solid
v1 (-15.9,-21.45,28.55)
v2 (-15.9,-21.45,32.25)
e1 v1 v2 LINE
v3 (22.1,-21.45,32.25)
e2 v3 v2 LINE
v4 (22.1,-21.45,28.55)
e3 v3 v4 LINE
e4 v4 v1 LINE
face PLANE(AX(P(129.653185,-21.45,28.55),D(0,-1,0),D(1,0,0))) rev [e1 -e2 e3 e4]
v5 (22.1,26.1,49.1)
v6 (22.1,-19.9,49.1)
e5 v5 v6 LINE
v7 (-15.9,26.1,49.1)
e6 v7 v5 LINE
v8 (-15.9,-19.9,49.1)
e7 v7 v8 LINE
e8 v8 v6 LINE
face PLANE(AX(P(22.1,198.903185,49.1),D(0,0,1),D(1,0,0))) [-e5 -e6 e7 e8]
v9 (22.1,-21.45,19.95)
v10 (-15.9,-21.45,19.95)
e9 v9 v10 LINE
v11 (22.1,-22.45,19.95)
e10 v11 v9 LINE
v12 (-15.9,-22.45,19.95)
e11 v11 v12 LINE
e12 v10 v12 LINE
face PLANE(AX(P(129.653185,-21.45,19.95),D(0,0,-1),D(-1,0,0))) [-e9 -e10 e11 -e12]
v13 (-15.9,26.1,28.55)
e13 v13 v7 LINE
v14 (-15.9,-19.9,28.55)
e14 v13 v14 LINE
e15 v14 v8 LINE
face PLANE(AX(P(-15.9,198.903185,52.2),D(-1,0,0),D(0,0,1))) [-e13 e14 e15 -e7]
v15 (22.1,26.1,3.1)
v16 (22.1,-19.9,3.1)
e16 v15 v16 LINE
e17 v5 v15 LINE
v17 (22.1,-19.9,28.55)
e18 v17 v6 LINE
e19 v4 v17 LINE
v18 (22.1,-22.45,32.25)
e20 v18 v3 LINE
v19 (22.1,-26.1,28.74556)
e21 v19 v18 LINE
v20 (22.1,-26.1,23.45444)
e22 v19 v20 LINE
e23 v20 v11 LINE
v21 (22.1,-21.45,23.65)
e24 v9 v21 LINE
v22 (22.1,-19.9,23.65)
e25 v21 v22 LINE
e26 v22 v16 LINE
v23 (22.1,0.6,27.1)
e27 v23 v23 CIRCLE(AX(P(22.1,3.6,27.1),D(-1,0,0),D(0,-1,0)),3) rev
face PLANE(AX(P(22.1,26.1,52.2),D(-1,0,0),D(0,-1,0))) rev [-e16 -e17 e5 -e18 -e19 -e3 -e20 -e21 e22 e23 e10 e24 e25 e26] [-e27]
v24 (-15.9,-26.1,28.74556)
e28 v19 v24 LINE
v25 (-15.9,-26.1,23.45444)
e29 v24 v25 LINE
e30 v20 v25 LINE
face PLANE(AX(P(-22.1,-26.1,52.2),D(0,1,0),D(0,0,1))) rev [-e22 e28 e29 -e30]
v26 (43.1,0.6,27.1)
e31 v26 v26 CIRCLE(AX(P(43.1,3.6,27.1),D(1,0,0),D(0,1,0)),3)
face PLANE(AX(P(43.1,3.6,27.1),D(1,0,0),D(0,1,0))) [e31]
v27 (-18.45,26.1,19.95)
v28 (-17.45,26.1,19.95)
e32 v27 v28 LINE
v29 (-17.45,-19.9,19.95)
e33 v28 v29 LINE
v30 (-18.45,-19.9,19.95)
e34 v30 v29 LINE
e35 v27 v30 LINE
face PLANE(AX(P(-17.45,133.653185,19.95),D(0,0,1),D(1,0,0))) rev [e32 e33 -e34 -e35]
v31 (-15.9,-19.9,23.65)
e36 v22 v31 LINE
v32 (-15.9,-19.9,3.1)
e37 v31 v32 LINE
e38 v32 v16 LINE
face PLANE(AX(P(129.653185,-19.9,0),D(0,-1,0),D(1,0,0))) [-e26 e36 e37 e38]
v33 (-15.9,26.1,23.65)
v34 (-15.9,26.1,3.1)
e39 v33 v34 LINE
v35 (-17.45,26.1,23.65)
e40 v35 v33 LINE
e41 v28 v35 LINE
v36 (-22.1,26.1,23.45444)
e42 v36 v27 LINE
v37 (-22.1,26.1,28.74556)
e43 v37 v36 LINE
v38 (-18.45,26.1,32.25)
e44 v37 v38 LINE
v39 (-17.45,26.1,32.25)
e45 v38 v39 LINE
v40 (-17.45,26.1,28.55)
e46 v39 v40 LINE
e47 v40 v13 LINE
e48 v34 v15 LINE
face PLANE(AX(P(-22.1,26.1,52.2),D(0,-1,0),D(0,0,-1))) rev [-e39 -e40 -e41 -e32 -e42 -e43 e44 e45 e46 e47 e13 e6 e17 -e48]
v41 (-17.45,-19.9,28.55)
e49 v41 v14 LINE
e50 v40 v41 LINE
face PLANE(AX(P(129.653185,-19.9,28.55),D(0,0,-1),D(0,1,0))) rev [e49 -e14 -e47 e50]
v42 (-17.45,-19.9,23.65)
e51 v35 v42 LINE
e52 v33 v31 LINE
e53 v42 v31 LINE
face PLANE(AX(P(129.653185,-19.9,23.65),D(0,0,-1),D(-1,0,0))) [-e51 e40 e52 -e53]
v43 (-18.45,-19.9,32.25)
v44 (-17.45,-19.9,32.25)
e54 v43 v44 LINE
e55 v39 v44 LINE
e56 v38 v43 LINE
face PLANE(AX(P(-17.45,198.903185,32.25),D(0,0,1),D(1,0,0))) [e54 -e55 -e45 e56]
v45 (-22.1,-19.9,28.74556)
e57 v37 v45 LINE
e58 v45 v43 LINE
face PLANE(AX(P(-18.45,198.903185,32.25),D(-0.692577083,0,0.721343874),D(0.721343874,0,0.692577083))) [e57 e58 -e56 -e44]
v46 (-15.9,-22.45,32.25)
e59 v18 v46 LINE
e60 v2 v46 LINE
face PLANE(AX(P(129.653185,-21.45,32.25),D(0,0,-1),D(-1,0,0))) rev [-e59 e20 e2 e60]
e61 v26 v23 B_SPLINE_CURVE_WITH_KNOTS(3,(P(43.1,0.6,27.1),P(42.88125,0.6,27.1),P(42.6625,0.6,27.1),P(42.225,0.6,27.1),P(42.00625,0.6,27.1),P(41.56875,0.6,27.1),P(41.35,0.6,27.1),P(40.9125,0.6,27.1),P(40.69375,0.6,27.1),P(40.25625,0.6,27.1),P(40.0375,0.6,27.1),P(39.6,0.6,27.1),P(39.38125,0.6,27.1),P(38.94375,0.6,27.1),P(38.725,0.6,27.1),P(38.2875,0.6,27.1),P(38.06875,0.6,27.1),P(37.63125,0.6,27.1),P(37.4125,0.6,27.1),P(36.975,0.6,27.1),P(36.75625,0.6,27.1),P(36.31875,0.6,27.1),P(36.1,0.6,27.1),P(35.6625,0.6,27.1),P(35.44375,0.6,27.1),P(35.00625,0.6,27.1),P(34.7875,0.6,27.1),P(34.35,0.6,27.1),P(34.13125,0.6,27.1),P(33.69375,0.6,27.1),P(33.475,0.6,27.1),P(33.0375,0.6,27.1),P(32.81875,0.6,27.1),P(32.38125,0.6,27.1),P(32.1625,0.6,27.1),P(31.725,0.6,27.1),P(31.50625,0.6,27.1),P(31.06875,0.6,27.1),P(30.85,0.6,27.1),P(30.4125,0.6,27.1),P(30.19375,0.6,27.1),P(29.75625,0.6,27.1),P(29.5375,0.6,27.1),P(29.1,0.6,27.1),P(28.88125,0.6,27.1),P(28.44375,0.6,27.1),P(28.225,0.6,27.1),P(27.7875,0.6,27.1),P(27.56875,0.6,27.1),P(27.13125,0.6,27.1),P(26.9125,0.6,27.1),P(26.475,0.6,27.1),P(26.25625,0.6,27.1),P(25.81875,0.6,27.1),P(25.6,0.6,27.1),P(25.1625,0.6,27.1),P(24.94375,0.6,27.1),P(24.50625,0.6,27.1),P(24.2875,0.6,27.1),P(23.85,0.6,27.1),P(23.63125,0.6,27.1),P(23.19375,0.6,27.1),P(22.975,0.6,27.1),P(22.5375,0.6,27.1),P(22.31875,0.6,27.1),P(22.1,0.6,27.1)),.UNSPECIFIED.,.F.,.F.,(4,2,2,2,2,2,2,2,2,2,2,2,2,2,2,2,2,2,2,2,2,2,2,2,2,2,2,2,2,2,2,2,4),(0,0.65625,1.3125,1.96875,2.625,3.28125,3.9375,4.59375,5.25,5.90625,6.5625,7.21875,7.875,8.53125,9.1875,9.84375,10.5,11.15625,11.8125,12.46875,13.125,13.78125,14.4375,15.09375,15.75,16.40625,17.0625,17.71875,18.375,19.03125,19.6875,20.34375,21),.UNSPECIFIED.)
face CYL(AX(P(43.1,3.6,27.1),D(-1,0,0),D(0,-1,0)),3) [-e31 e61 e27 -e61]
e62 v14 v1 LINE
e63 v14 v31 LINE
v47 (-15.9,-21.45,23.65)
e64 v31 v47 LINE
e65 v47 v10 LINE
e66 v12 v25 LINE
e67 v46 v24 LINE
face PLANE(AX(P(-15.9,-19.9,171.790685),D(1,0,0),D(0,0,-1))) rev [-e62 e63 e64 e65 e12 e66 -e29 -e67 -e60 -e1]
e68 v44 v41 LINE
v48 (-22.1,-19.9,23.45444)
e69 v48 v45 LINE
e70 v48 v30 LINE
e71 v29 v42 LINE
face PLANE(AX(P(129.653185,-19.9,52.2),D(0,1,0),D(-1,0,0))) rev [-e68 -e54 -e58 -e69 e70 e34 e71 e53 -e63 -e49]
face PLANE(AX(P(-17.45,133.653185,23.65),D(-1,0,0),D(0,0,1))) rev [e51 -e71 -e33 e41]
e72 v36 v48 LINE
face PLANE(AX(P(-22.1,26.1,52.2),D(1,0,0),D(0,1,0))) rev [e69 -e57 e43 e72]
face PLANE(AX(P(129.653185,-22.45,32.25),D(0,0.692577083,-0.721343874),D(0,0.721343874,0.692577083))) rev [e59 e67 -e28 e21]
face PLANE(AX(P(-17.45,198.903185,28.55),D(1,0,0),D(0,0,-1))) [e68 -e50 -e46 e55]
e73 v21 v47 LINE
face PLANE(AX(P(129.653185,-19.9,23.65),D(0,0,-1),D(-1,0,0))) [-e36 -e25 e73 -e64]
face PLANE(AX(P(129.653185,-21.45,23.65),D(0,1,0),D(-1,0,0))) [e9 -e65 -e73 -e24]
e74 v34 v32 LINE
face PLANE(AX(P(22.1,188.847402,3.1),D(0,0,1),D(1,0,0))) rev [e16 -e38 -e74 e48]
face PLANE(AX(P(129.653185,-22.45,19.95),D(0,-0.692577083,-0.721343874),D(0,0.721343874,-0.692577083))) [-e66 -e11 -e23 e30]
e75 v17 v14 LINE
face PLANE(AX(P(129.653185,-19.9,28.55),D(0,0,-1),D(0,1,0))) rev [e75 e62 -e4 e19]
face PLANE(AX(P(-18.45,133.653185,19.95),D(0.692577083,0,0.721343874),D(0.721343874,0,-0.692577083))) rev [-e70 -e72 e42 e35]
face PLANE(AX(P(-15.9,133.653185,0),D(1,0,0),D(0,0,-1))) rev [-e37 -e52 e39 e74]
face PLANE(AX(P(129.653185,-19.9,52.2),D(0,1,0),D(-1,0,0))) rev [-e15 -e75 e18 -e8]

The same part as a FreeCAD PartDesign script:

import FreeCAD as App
import Part
import Sketcher
Q = App.Units.Quantity


def add_polygon(sketch, points):
    """Adds a closed chain of lines whose ends are joined by coincident constraints."""
    first, n = sketch.GeometryCount, len(points)
    for a, b in zip(points, points[1:] + points[:1]):
        sketch.addGeometry(Part.LineSegment(App.Vector(*a, 0), App.Vector(*b, 0)), False)
    for i in range(n):
        sketch.addConstraint(Sketcher.Constraint("Coincident", first + i, 2, first + (i + 1) % n, 1))

doc = App.newDocument("Part")
params = doc.addObject("Spreadsheet::Sheet", "Params")
for row, (alias, value) in enumerate([
    ("sketch1_width", "44.2 mm"),
    ("sketch1_height", "52.2 mm"),
    ("pad1_length", "52.2 mm"),
    ("sketch2_width", "1 mm"),
    ("sketch2_height", "3.7 mm"),
    ("sketch2_width2", "1.55 mm"),
    ("sketch2_length", "5.06 mm"),
    ("sketch3_width", "1 mm"),
    ("sketch3_height", "3.7 mm"),
    ("sketch3_width2", "1.55 mm"),
    ("sketch3_length", "5.06 mm"),
    ("sketch4_width", "1 mm"),
    ("sketch4_height", "3.7 mm"),
    ("sketch4_width2", "1.55 mm"),
    ("sketch4_length", "5.06 mm"),
    ("pocket3_length", "78.059003 mm"),
    ("pocket3_length2", "46 mm"),
    ("sketch5_width", "1 mm"),
    ("sketch5_height", "3.7 mm"),
    ("sketch5_width2", "1.55 mm"),
    ("sketch5_length", "5.06 mm"),
    ("pocket4_length", "78.059003 mm"),
    ("pocket4_length2", "46 mm"),
    ("sketch9_diameter", "6 mm"),
    ("pad2_length", "21 mm"),
], start=1):
    params.set(f"A{row}", alias)
    params.set(f"B{row}", "=" + value)
    params.setAlias(f"B{row}", alias)

body = doc.addObject("PartDesign::Body", "Body")

sketch1 = body.newObject("Sketcher::SketchObject", "Sketch")
sketch1.AttachmentSupport = (doc.getObject("XY_Plane"), [""])
sketch1.MapMode = "FlatFace"
add_polygon(sketch1, [(-22, 26), (-22, -26), (22, -26), (22, 26)])
sketch1.addConstraint([
    Sketcher.Constraint("Vertical", 0),
    Sketcher.Constraint("Horizontal", 1),
    Sketcher.Constraint("Vertical", 2),
    Sketcher.Constraint("Horizontal", 3),
    Sketcher.Constraint("Symmetric", 0, 2, 2, 2, -1, 1),
    Sketcher.Constraint("DistanceX", 1, 1, 1, 2, Q("44.2 mm")),
    Sketcher.Constraint("DistanceY", 0, 2, 0, 1, Q("52.2 mm")),
])
sketch1.setExpression("Constraints[9]", "Params.sketch1_width")
sketch1.setExpression("Constraints[10]", "Params.sketch1_height")
pad1 = body.newObject("PartDesign::Pad", "Pad")
pad1.Profile = sketch1
pad1.setExpression("Length", "Params.pad1_length")

sketch2 = body.newObject("Sketcher::SketchObject", "Sketch001")
sketch2.AttachmentSupport = (doc.getObject("YZ_Plane"), [""])
sketch2.MapMode = "FlatFace"
sketch2.AttachmentOffset = App.Placement(App.Vector(0, 0, 22.1), App.Rotation())
add_polygon(sketch2, [(-19.9, 28.6), (-19.9, 201.4), (-295.7, 315.1), (-409.5, 39.2), (-133.7, -74.6), (-26.1, 28.7), (-22.4, 32.2), (-21.4, 32.2), (-21.4, 28.6)])
sketch2.addConstraint([
    Sketcher.Constraint("Vertical", 0),
    Sketcher.Constraint("Horizontal", 6),
    Sketcher.Constraint("Vertical", 7),
    Sketcher.Constraint("Horizontal", 8),
    Sketcher.Constraint("Perpendicular", 1, 2),
    Sketcher.Constraint("Perpendicular", 2, 3),
    Sketcher.Constraint("Parallel", 4, 5),
    Sketcher.Constraint("Equal", 1, 3),
    Sketcher.Constraint("DistanceX", 6, 1, 6, 2, Q("1 mm")),
    Sketcher.Constraint("DistanceY", 7, 2, 7, 1, Q("3.7 mm")),
    Sketcher.Constraint("DistanceX", 8, 1, 8, 2, Q("1.55 mm")),
    Sketcher.Constraint("DistanceX", 0, 2, -1, 1, Q("19.9 mm")),
    Sketcher.Constraint("DistanceX", 4, 2, -1, 1, Q("26.1 mm")),
    Sketcher.Constraint("Distance", 5, Q("5.06 mm")),
    Sketcher.Constraint("DistanceY", -1, 1, 5, 2, Q("32.25 mm")),
    Sketcher.Constraint("DistanceY", 0, 1, 0, 2, Q("172.802291 mm")),
    Sketcher.Constraint("DistanceY", 3, 2, -1, 1, Q("74.553898 mm")),
    Sketcher.Constraint("Distance", 1, Q("298.304581 mm")),
])
sketch2.setExpression("Constraints[17]", "Params.sketch2_width")
sketch2.setExpression("Constraints[18]", "Params.sketch2_height")
sketch2.setExpression("Constraints[19]", "Params.sketch2_width2")
sketch2.setExpression("Constraints[22]", "Params.sketch2_length")
pocket1 = body.newObject("PartDesign::Pocket", "Pocket")
pocket1.Profile = sketch2
pocket1.Type = "ThroughAll"
pocket1.Midplane = True

sketch3 = body.newObject("Sketcher::SketchObject", "Sketch002")
sketch3.AttachmentSupport = (doc.getObject("YZ_Plane"), [""])
sketch3.MapMode = "FlatFace"
sketch3.AttachmentOffset = App.Placement(App.Vector(0, 0, 22.1), App.Rotation())
add_polygon(sketch3, [(-19.9, -149.2), (-19.9, 23.6), (-21.4, 23.6), (-21.4, 19.9), (-22.4, 19.9), (-26.1, 23.5), (-133.7, 126.8), (-409.5, 13), (-295.7, -262.9)])
sketch3.addConstraint([
    Sketcher.Constraint("Vertical", 0),
    Sketcher.Constraint("Horizontal", 1),
    Sketcher.Constraint("Vertical", 2),
    Sketcher.Constraint("Horizontal", 3),
    Sketcher.Constraint("Parallel", 4, 5),
    Sketcher.Constraint("Perpendicular", 6, 7),
    Sketcher.Constraint("Perpendicular", 7, 8),
    Sketcher.Constraint("Equal", 6, 8),
    Sketcher.Constraint("DistanceX", 3, 2, 3, 1, Q("1 mm")),
    Sketcher.Constraint("DistanceY", 2, 2, 2, 1, Q("3.7 mm")),
    Sketcher.Constraint("DistanceX", 1, 2, 1, 1, Q("1.55 mm")),
    Sketcher.Constraint("DistanceX", 0, 2, -1, 1, Q("19.9 mm")),
    Sketcher.Constraint("DistanceX", 4, 2, -1, 1, Q("26.1 mm")),
    Sketcher.Constraint("Distance", 4, Q("5.06 mm")),
    Sketcher.Constraint("DistanceY", -1, 1, 0, 2, Q("23.65 mm")),
    Sketcher.Constraint("DistanceY", 0, 1, 0, 2, Q("172.802291 mm")),
    Sketcher.Constraint("DistanceY", -1, 1, 5, 2, Q("126.753898 mm")),
    Sketcher.Constraint("Distance", 6, Q("298.304581 mm")),
])
sketch3.setExpression("Constraints[17]", "Params.sketch3_width")
sketch3.setExpression("Constraints[18]", "Params.sketch3_height")
sketch3.setExpression("Constraints[19]", "Params.sketch3_width2")
sketch3.setExpression("Constraints[22]", "Params.sketch3_length")
pocket2 = body.newObject("PartDesign::Pocket", "Pocket001")
pocket2.Profile = sketch3
pocket2.Type = "ThroughAll"
pocket2.Midplane = True

sketch4 = body.newObject("Sketcher::SketchObject", "Sketch003")
sketch4.AttachmentSupport = (doc.getObject("XZ_Plane"), [""])
sketch4.MapMode = "FlatFace"
sketch4.AttachmentOffset = App.Placement(App.Vector(0, 0, -26.1), App.Rotation())
add_polygon(sketch4, [(-15.9, 191.3), (-15.9, 28.6), (-17.4, 28.6), (-17.4, 32.2), (-18.4, 32.2), (-22.1, 28.7), (-122.5, -67.6), (-379.8, 38.3), (-273.2, 297.2)])
sketch4.addConstraint([
    Sketcher.Constraint("Vertical", 0),
    Sketcher.Constraint("Horizontal", 1),
    Sketcher.Constraint("Vertical", 2),
    Sketcher.Constraint("Horizontal", 3),
    Sketcher.Constraint("Parallel", 4, 5),
    Sketcher.Constraint("Perpendicular", 6, 7),
    Sketcher.Constraint("Perpendicular", 7, 8),
    Sketcher.Constraint("Equal", 6, 8),
    Sketcher.Constraint("DistanceX", 3, 2, 3, 1, Q("1 mm")),
    Sketcher.Constraint("DistanceY", 2, 1, 2, 2, Q("3.7 mm")),
    Sketcher.Constraint("DistanceX", 1, 2, 1, 1, Q("1.55 mm")),
    Sketcher.Constraint("DistanceX", 0, 2, -1, 1, Q("15.9 mm")),
    Sketcher.Constraint("DistanceX", 4, 2, -1, 1, Q("22.1 mm")),
    Sketcher.Constraint("Distance", 4, Q("5.06 mm")),
    Sketcher.Constraint("DistanceY", -1, 1, 0, 2, Q("28.55 mm")),
    Sketcher.Constraint("DistanceY", 0, 2, 0, 1, Q("162.78311 mm")),
    Sketcher.Constraint("Distance", 5, Q("139.13311 mm")),
    Sketcher.Constraint("Distance", 6, Q("278.266219 mm")),
])
sketch4.setExpression("Constraints[17]", "Params.sketch4_width")
sketch4.setExpression("Constraints[18]", "Params.sketch4_height")
sketch4.setExpression("Constraints[19]", "Params.sketch4_width2")
sketch4.setExpression("Constraints[22]", "Params.sketch4_length")
pocket3 = body.newObject("PartDesign::Pocket", "Pocket002")
pocket3.Profile = sketch4
pocket3.Type = "TwoLengths"
pocket3.setExpression("Length", "Params.pocket3_length")
pocket3.setExpression("Length2", "Params.pocket3_length2")

sketch5 = body.newObject("Sketcher::SketchObject", "Sketch004")
sketch5.AttachmentSupport = (doc.getObject("XZ_Plane"), [""])
sketch5.MapMode = "FlatFace"
sketch5.AttachmentOffset = App.Placement(App.Vector(0, 0, -26.1), App.Rotation())
add_polygon(sketch5, [(-15.9, 23.6), (-15.9, -139.1), (-273.2, -245), (-379.8, 13.9), (-122.5, 119.8), (-22.1, 23.5), (-18.4, 19.9), (-17.4, 19.9), (-17.4, 23.6)])
sketch5.addConstraint([
    Sketcher.Constraint("Vertical", 0),
    Sketcher.Constraint("Horizontal", 6),
    Sketcher.Constraint("Vertical", 7),
    Sketcher.Constraint("Horizontal", 8),
    Sketcher.Constraint("Perpendicular", 1, 2),
    Sketcher.Constraint("Perpendicular", 2, 3),
    Sketcher.Constraint("Parallel", 4, 5),
    Sketcher.Constraint("Equal", 1, 3),
    Sketcher.Constraint("DistanceX", 6, 1, 6, 2, Q("1 mm")),
    Sketcher.Constraint("DistanceY", 7, 1, 7, 2, Q("3.7 mm")),
    Sketcher.Constraint("DistanceX", 8, 1, 8, 2, Q("1.55 mm")),
    Sketcher.Constraint("DistanceX", 0, 2, -1, 1, Q("15.9 mm")),
    Sketcher.Constraint("DistanceX", 4, 2, -1, 1, Q("22.1 mm")),
    Sketcher.Constraint("Distance", 5, Q("5.06 mm")),
    Sketcher.Constraint("DistanceY", -1, 1, 5, 2, Q("19.95 mm")),
    Sketcher.Constraint("DistanceY", 0, 2, 0, 1, Q("162.78311 mm")),
    Sketcher.Constraint("Distance", 1, Q("278.266219 mm")),
    Sketcher.Constraint("Distance", 2, Q("280.017278 mm")),
])
sketch5.setExpression("Constraints[17]", "Params.sketch5_width")
sketch5.setExpression("Constraints[18]", "Params.sketch5_height")
sketch5.setExpression("Constraints[19]", "Params.sketch5_width2")
sketch5.setExpression("Constraints[22]", "Params.sketch5_length")
pocket4 = body.newObject("PartDesign::Pocket", "Pocket003")
pocket4.Profile = sketch5
pocket4.Type = "TwoLengths"
pocket4.setExpression("Length", "Params.pocket4_length")
pocket4.setExpression("Length2", "Params.pocket4_length2")

sketch6 = body.newObject("Sketcher::SketchObject", "Sketch005")
sketch6.AttachmentSupport = (doc.getObject("XY_Plane"), [""])
sketch6.MapMode = "FlatFace"
sketch6.AttachmentOffset = App.Placement(App.Vector(0, 0, 28.55), App.Rotation())
add_polygon(sketch6, [(-16, -20), (-161, -20), (-358, -217), (-213, -362), (-16, -165)])
sketch6.addConstraint([
    Sketcher.Constraint("Horizontal", 0),
    Sketcher.Constraint("Vertical", 4),
    Sketcher.Constraint("Perpendicular", 1, 2),
    Sketcher.Constraint("Perpendicular", 2, 3),
    Sketcher.Constraint("Equal", 1, 3),
    Sketcher.Constraint("DistanceY", 0, 2, -1, 1, Q("19.9 mm")),
    Sketcher.Constraint("DistanceX", 3, 2, -1, 1, Q("15.9 mm")),
    Sketcher.Constraint("DistanceX", 0, 2, 0, 1, Q("145.322842 mm")),
    Sketcher.Constraint("DistanceY", 4, 1, 4, 2, Q("145.316491 mm")),
    Sketcher.Constraint("DistanceY", 2, 2, -1, 1, Q("361.9702 mm")),
])
pocket5 = body.newObject("PartDesign::Pocket", "Pocket004")
pocket5.Profile = sketch6
pocket5.Type = "ThroughAll"
pocket5.Midplane = True

sketch7 = body.newObject("Sketcher::SketchObject", "Sketch006")
sketch7.AttachmentSupport = (doc.getObject("XZ_Plane"), [""])
sketch7.MapMode = "FlatFace"
sketch7.AttachmentOffset = App.Placement(App.Vector(0, 0, -26.1), App.Rotation())
add_polygon(sketch7, [(164, 49), (-158, 49), (-158, 333), (164, 333)])
sketch7.addConstraint([
    Sketcher.Constraint("Horizontal", 0),
    Sketcher.Constraint("Vertical", 1),
    Sketcher.Constraint("Horizontal", 2),
    Sketcher.Constraint("Vertical", 3),
    Sketcher.Constraint("DistanceY", -1, 1, 0, 2, Q("49.1 mm")),
    Sketcher.Constraint("DistanceX", 0, 2, 0, 1, Q("322.255937 mm")),
    Sketcher.Constraint("DistanceY", 1, 1, 1, 2, Q("284.255937 mm")),
    Sketcher.Constraint("DistanceX", 0, 2, -1, 1, Q("158.027968 mm")),
])
pocket6 = body.newObject("PartDesign::Pocket", "Pocket005")
pocket6.Profile = sketch7
pocket6.Type = "ThroughAll"
pocket6.Midplane = True

sketch8 = body.newObject("Sketcher::SketchObject", "Sketch007")
sketch8.AttachmentSupport = (doc.getObject("XZ_Plane"), [""])
sketch8.MapMode = "FlatFace"
sketch8.AttachmentOffset = App.Placement(App.Vector(0, 0, -26.1), App.Rotation())
add_polygon(sketch8, [(-153, 3), (160, 3), (160, -272), (-153, -272)])
sketch8.addConstraint([
    Sketcher.Constraint("Horizontal", 0),
    Sketcher.Constraint("Vertical", 1),
    Sketcher.Constraint("Horizontal", 2),
    Sketcher.Constraint("Vertical", 3),
    Sketcher.Constraint("DistanceY", -1, 1, 0, 2, Q("3.1 mm")),
    Sketcher.Constraint("DistanceX", 0, 1, 0, 2, Q("313.17492 mm")),
    Sketcher.Constraint("DistanceY", 1, 2, 1, 1, Q("275.17492 mm")),
    Sketcher.Constraint("DistanceX", -1, 1, 0, 2, Q("159.68746 mm")),
])
pocket7 = body.newObject("PartDesign::Pocket", "Pocket006")
pocket7.Profile = sketch8
pocket7.Type = "ThroughAll"
pocket7.Midplane = True

sketch9 = body.newObject("Sketcher::SketchObject", "Sketch008")
sketch9.AttachmentSupport = (doc.getObject("YZ_Plane"), [""])
sketch9.MapMode = "FlatFace"
sketch9.AttachmentOffset = App.Placement(App.Vector(0, 0, 22.1), App.Rotation())
sketch9.addGeometry(Part.Circle(App.Vector(3.6, 27.1, 0), App.Vector(0, 0, 1), 3), False)
sketch9.addConstraint([
    Sketcher.Constraint("Diameter", 0, Q("6 mm")),
    Sketcher.Constraint("DistanceX", -1, 1, 0, 3, Q("3.6 mm")),
    Sketcher.Constraint("DistanceY", -1, 1, 0, 3, Q("27.1 mm")),
])
sketch9.setExpression("Constraints[0]", "Params.sketch9_diameter")
pad2 = body.newObject("PartDesign::Pad", "Pad001")
pad2.Profile = sketch9
pad2.setExpression("Length", "Params.pad2_length")

doc.recompute()
